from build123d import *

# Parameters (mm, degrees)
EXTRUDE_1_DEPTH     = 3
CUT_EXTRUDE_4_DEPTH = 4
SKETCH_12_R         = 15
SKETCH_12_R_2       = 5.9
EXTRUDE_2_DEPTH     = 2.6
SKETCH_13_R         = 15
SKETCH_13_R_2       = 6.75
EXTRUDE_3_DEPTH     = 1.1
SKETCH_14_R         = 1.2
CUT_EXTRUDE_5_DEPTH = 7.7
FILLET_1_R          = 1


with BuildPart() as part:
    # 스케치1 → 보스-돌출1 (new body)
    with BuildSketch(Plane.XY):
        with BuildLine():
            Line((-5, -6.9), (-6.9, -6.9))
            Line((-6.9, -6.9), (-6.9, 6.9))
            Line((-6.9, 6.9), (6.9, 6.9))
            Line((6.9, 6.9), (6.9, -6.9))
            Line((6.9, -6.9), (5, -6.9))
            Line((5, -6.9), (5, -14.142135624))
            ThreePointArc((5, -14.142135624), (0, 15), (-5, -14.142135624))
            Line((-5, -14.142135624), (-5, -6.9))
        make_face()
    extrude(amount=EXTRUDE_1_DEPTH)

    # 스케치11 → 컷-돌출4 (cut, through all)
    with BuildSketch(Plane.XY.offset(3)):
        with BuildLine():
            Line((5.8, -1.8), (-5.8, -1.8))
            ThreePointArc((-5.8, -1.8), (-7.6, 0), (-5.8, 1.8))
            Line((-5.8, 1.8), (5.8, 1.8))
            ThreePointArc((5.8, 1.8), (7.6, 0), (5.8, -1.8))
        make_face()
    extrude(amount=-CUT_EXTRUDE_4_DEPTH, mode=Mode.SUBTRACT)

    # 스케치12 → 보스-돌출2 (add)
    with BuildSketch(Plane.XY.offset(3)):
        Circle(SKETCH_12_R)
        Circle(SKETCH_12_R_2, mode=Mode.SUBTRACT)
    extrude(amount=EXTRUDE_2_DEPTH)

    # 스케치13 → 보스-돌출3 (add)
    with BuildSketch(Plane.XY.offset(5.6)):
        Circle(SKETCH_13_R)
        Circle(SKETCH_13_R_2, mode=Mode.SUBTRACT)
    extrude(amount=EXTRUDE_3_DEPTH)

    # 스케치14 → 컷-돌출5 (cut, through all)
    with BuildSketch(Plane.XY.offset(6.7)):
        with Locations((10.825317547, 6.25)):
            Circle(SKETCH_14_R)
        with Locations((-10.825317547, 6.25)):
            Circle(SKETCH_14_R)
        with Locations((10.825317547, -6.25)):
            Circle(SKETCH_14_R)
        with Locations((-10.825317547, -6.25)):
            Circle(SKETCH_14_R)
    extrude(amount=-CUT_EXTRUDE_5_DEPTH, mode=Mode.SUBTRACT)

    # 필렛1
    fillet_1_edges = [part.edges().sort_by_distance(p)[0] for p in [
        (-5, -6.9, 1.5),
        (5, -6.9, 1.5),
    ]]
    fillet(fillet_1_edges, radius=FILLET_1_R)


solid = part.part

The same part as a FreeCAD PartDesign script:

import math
import FreeCAD as App
import Part
import Sketcher


def edges_at(feature, points):
    """Names of the edges that pass closest to the given points."""
    edges = feature.Shape.Edges
    near = lambda p: min(range(len(edges)), key=lambda i: edges[i].distToShape(Part.Vertex(*p))[0])
    return sorted({f"Edge{near(p) + 1}" for p in points})

doc = App.newDocument("Part")
body = doc.addObject("PartDesign::Body", "Body")

# Sketch on XY plane
sketch1 = body.newObject("Sketcher::SketchObject", "Sketch")
sketch1.AttachmentSupport = (doc.getObject("XY_Plane"), [""])
sketch1.MapMode = "FlatFace"
sketch1.addGeometry([
    Part.LineSegment(App.Vector(-5, -6.9, 0), App.Vector(-6.9, -6.9, 0)),  # 0
    Part.LineSegment(App.Vector(-6.9, -6.9, 0), App.Vector(-6.9, 6.9, 0)),  # 1
    Part.LineSegment(App.Vector(-6.9, 6.9, 0), App.Vector(6.9, 6.9, 0)),  # 2
    Part.LineSegment(App.Vector(6.9, 6.9, 0), App.Vector(6.9, -6.9, 0)),  # 3
    Part.LineSegment(App.Vector(6.9, -6.9, 0), App.Vector(5, -6.9, 0)),  # 4
    Part.LineSegment(App.Vector(5, -6.9, 0), App.Vector(5, -14.1, 0)),  # 5
    Part.ArcOfCircle(Part.Circle(App.Vector(0, 0, 0), App.Vector(0, 0, 1), 15), math.radians(-71), math.radians(251)),  # 6
    Part.LineSegment(App.Vector(-5, -14.1, 0), App.Vector(-5, -6.9, 0)),  # 7
], False)
sketch1.addConstraint([
    Sketcher.Constraint("Coincident", 0, 2, 1, 1),
    Sketcher.Constraint("Coincident", 1, 2, 2, 1),
    Sketcher.Constraint("Coincident", 2, 2, 3, 1),
    Sketcher.Constraint("Coincident", 3, 2, 4, 1),
    Sketcher.Constraint("Coincident", 4, 2, 5, 1),
    Sketcher.Constraint("Coincident", 5, 2, 6, 1),
    Sketcher.Constraint("Coincident", 6, 2, 7, 1),
    Sketcher.Constraint("Coincident", 7, 2, 0, 1),
    Sketcher.Constraint("Horizontal", 0),
    Sketcher.Constraint("Vertical", 1),
    Sketcher.Constraint("Horizontal", 2),
    Sketcher.Constraint("Vertical", 3),
    Sketcher.Constraint("Horizontal", 4),
    Sketcher.Constraint("Vertical", 5),
    Sketcher.Constraint("Vertical", 7),
    Sketcher.Constraint("Coincident", 6, 3, -1, 1),
    Sketcher.Constraint("Symmetric", 0, 2, 2, 2, -1, 1),
    Sketcher.Constraint("Symmetric", 4, 2, 7, 2, -2),
    Sketcher.Constraint("Equal", 2, 1),
    Sketcher.Constraint("Radius", 6, 15.0),
    Sketcher.Constraint("DistanceX", 0, 2, 0, 1, 1.9),
    Sketcher.Constraint("DistanceX", 2, 1, 2, 2, 13.8),
])
pad1 = body.newObject("PartDesign::Pad", "Pad")
pad1.Profile = sketch1
pad1.Length = 3

# Sketch on XY plane
sketch2 = body.newObject("Sketcher::SketchObject", "Sketch001")
sketch2.AttachmentSupport = (doc.getObject("XY_Plane"), [""])
sketch2.MapMode = "FlatFace"
sketch2.AttachmentOffset = App.Placement(App.Vector(0, 0, 3), App.Rotation())
sketch2.addGeometry([
    Part.LineSegment(App.Vector(-5.8, -1.8, 0), App.Vector(5.8, -1.8, 0)),
    Part.ArcOfCircle(Part.Circle(App.Vector(5.8, 0, 0), App.Vector(0, 0, 1), 1.8), math.radians(-90), math.radians(90)),
    Part.LineSegment(App.Vector(5.8, 1.8, 0), App.Vector(-5.8, 1.8, 0)),
    Part.ArcOfCircle(Part.Circle(App.Vector(-5.8, 0, 0), App.Vector(0, 0, 1), 1.8), math.radians(90), math.radians(270)),
], False)
sketch2.addConstraint([
    Sketcher.Constraint("Tangent", 0, 2, 1, 1),
    Sketcher.Constraint("Tangent", 1, 2, 2, 1),
    Sketcher.Constraint("Tangent", 2, 2, 3, 1),
    Sketcher.Constraint("Tangent", 3, 2, 0, 1),
    Sketcher.Constraint("Horizontal", 0),
    Sketcher.Constraint("Horizontal", 2),
    Sketcher.Constraint("Symmetric", 1, 3, 3, 3, -1, 1),
    Sketcher.Constraint("Radius", 1, 1.8),
    Sketcher.Constraint("DistanceX", 0, 1, 0, 2, 11.6),
])
pocket1 = body.newObject("PartDesign::Pocket", "Pocket")
pocket1.Profile = sketch2
pocket1.Type = "ThroughAll"

# Sketch on XY plane
sketch3 = body.newObject("Sketcher::SketchObject", "Sketch002")
sketch3.AttachmentSupport = (doc.getObject("XY_Plane"), [""])
sketch3.MapMode = "FlatFace"
sketch3.AttachmentOffset = App.Placement(App.Vector(0, 0, 3), App.Rotation())
sketch3.addGeometry([
    Part.Circle(App.Vector(0, 0, 0), App.Vector(0, 0, 1), 15),
    Part.Circle(App.Vector(0, 0, 0), App.Vector(0, 0, 1), 6),
], False)
sketch3.addConstraint([
    Sketcher.Constraint("Coincident", 0, 3, -1, 1),
    Sketcher.Constraint("Coincident", 1, 3, -1, 1),
    Sketcher.Constraint("Diameter", 0, 30.0),
    Sketcher.Constraint("Diameter", 1, 11.8),
])
pad2 = body.newObject("PartDesign::Pad", "Pad001")
pad2.Profile = sketch3
pad2.Length = 2.6

# Sketch on XY plane
sketch4 = body.newObject("Sketcher::SketchObject", "Sketch003")
sketch4.AttachmentSupport = (doc.getObject("XY_Plane"), [""])
sketch4.MapMode = "FlatFace"
sketch4.AttachmentOffset = App.Placement(App.Vector(0, 0, 5.6), App.Rotation())
sketch4.addGeometry([
    Part.Circle(App.Vector(0, 0, 0), App.Vector(0, 0, 1), 15),
    Part.Circle(App.Vector(0, 0, 0), App.Vector(0, 0, 1), 7),
], False)
sketch4.addConstraint([
    Sketcher.Constraint("Coincident", 0, 3, -1, 1),
    Sketcher.Constraint("Coincident", 1, 3, -1, 1),
    Sketcher.Constraint("Diameter", 0, 30.0),
    Sketcher.Constraint("Diameter", 1, 13.5),
])
pad3 = body.newObject("PartDesign::Pad", "Pad002")
pad3.Profile = sketch4
pad3.Length = 1.1

# Sketch on XY plane
sketch5 = body.newObject("Sketcher::SketchObject", "Sketch004")
sketch5.AttachmentSupport = (doc.getObject("XY_Plane"), [""])
sketch5.MapMode = "FlatFace"
sketch5.AttachmentOffset = App.Placement(App.Vector(0, 0, 6.7), App.Rotation())
sketch5.addGeometry([
    Part.Circle(App.Vector(10.8, 6.2, 0), App.Vector(0, 0, 1), 1.2),
    Part.Circle(App.Vector(-10.8, 6.2, 0), App.Vector(0, 0, 1), 1.2),
    Part.Circle(App.Vector(10.8, -6.2, 0), App.Vector(0, 0, 1), 1.2),
    Part.Circle(App.Vector(-10.8, -6.2, 0), App.Vector(0, 0, 1), 1.2),
], False)
sketch5.addConstraint([
    Sketcher.Constraint("Equal", 0, 1),
    Sketcher.Constraint("Equal", 1, 2),
    Sketcher.Constraint("Equal", 2, 3),
    Sketcher.Constraint("Symmetric", 1, 3, 2, 3, -1, 1),
    Sketcher.Constraint("Symmetric", 0, 3, 3, 3, -1, 1),
    Sketcher.Constraint("Symmetric", 0, 3, 1, 3, -2),
    Sketcher.Constraint("Diameter", 0, 2.4),
    Sketcher.Constraint("DistanceY", 2, 3, 0, 3, 12.5),
    Sketcher.Constraint("DistanceX", -1, 1, 0, 3, 10.825318),
])
pocket2 = body.newObject("PartDesign::Pocket", "Pocket001")
pocket2.Profile = sketch5
pocket2.Type = "ThroughAll"
doc.recompute()

fillet = body.newObject("PartDesign::Fillet", "Fillet")
fillet.Base = (pocket2, edges_at(pocket2, [(-5, -6.9, 1.5), (5, -6.9, 1.5)]))
fillet.Radius = 1

doc.recompute()
